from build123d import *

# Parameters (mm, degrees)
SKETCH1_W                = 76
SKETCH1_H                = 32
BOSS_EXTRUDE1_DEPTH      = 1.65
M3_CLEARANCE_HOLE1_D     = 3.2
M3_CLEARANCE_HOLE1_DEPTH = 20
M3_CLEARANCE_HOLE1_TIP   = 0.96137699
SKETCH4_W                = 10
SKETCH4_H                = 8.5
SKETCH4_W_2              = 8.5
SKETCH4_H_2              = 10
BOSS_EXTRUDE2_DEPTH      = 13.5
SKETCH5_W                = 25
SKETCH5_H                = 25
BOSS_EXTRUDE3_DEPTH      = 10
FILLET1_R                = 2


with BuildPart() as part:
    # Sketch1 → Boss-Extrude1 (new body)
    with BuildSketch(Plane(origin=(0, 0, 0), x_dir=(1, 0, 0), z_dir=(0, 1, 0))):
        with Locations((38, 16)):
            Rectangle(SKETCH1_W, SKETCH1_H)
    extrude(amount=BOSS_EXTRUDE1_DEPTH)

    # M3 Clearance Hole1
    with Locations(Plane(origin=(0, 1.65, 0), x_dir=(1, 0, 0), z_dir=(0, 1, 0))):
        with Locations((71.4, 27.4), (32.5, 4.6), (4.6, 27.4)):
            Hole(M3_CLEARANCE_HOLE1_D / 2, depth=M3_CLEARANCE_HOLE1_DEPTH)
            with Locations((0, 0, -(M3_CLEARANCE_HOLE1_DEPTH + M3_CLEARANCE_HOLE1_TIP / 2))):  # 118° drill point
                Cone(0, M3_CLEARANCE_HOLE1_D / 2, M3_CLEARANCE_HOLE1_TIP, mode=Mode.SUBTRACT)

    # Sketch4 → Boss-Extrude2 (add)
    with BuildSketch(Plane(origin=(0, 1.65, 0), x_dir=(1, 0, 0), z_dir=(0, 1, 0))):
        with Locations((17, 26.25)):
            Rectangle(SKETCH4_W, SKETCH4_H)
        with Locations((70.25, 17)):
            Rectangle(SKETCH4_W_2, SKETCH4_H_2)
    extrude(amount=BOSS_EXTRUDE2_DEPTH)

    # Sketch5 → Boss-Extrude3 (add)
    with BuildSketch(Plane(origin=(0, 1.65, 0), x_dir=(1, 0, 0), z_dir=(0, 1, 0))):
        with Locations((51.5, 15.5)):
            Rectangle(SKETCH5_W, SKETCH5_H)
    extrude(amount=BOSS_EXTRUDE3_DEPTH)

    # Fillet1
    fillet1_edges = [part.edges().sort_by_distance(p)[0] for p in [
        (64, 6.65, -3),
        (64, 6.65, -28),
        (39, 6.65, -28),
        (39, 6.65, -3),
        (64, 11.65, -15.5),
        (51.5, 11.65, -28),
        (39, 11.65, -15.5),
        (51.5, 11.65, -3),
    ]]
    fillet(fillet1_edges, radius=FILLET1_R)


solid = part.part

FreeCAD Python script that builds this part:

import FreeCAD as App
import Part
import Sketcher
from FreeCAD import Vector
Q = App.Units.Quantity


def edges_at(feature, points):
    """Names of the edges that pass closest to the given points."""
    edges = feature.Shape.Edges
    near = lambda p: min(range(len(edges)), key=lambda i: edges[i].distToShape(Part.Vertex(*p))[0])
    return sorted({f"Edge{near(p) + 1}" for p in points})

doc = App.newDocument("Part")
body = doc.addObject("PartDesign::Body", "Body")

# Sketch on XZ plane
sketch1 = body.newObject("Sketcher::SketchObject", "Sketch")
sketch1.AttachmentSupport = (doc.getObject("XZ_Plane"), [""])
sketch1.MapMode = "FlatFace"
sketch1.addGeometry([
    Part.LineSegment(Vector(0, -32, 0), Vector(0, 0, 0)),
    Part.LineSegment(Vector(0, 0, 0), Vector(76, 0, 0)),
    Part.LineSegment(Vector(76, 0, 0), Vector(76, -32, 0)),
    Part.LineSegment(Vector(76, -32, 0), Vector(0, -32, 0)),
], False)
sketch1.addConstraint([
    Sketcher.Constraint("Coincident", 0, 2, 1, 1),
    Sketcher.Constraint("Coincident", 1, 2, 2, 1),
    Sketcher.Constraint("Coincident", 2, 2, 3, 1),
    Sketcher.Constraint("Coincident", 3, 2, 0, 1),
    Sketcher.Constraint("Vertical", 0),
    Sketcher.Constraint("Horizontal", 1),
    Sketcher.Constraint("Vertical", 2),
    Sketcher.Constraint("Horizontal", 3),
    Sketcher.Constraint("Coincident", 0, 2, -1, 1),
    Sketcher.Constraint("DistanceX", 1, 1, 1, 2, Q("76 mm")),
    Sketcher.Constraint("DistanceY", 0, 1, 0, 2, Q("32 mm")),
])
pad1 = body.newObject("PartDesign::Pad", "Pad")
pad1.Profile = sketch1
pad1.Length = 1.65
pad1.Reversed = True

# Sketch on XZ plane
sketch2 = body.newObject("Sketcher::SketchObject", "Sketch001")
sketch2.AttachmentSupport = (doc.getObject("XZ_Plane"), [""])
sketch2.MapMode = "FlatFace"
sketch2.AttachmentOffset = App.Placement(Vector(0, 0, -1.65), App.Rotation())
sketch2.addGeometry([
    Part.Circle(Vector(71.4, -27.4, 0), Vector(0, 0, 1), 1.6),
    Part.Circle(Vector(32.5, -4.6, 0), Vector(0, 0, 1), 1.6),
    Part.Circle(Vector(4.6, -27.4, 0), Vector(0, 0, 1), 1.6),
], False)
sketch2.addConstraint([
    Sketcher.Constraint("Equal", 0, 1),
    Sketcher.Constraint("Equal", 1, 2),
    Sketcher.Constraint("Horizontal", 0, 3, 2, 3),
    Sketcher.Constraint("Diameter", 0, Q("3.2 mm")),
    Sketcher.Constraint("DistanceX", -1, 1, 0, 3, Q("71.4 mm")),
    Sketcher.Constraint("DistanceY", 0, 3, -1, 1, Q("27.4 mm")),
    Sketcher.Constraint("DistanceX", -1, 1, 1, 3, Q("32.5 mm")),
    Sketcher.Constraint("DistanceY", 1, 3, -1, 1, Q("4.6 mm")),
    Sketcher.Constraint("DistanceX", -1, 1, 2, 3, Q("4.6 mm")),
])
doc.recompute()
hole = body.newObject("PartDesign::Hole", "Hole")
hole.Profile = sketch2
hole.ThreadType = "None"
hole.Diameter = 3.2
hole.DepthType = "Dimension"
hole.Depth = 20
hole.DrillPoint = "Angled"
hole.DrillPointAngle = 118
hole.Reversed = True

# Sketch on XZ plane
sketch3 = body.newObject("Sketcher::SketchObject", "Sketch002")
sketch3.AttachmentSupport = (doc.getObject("XZ_Plane"), [""])
sketch3.MapMode = "FlatFace"
sketch3.AttachmentOffset = App.Placement(Vector(0, 0, -1.65), App.Rotation())
sketch3.addGeometry([
    Part.LineSegment(Vector(12, -30, 0), Vector(12, -22, 0)),  # 0
    Part.LineSegment(Vector(12, -22, 0), Vector(22, -22, 0)),  # 1
    Part.LineSegment(Vector(22, -22, 0), Vector(22, -30, 0)),  # 2
    Part.LineSegment(Vector(22, -30, 0), Vector(12, -30, 0)),  # 3
    Part.LineSegment(Vector(66, -22, 0), Vector(66, -12, 0)),  # 4
    Part.LineSegment(Vector(66, -12, 0), Vector(74, -12, 0)),  # 5
    Part.LineSegment(Vector(74, -12, 0), Vector(74, -22, 0)),  # 6
    Part.LineSegment(Vector(74, -22, 0), Vector(66, -22, 0)),  # 7
], False)
sketch3.addConstraint([
    Sketcher.Constraint("Coincident", 0, 2, 1, 1),
    Sketcher.Constraint("Coincident", 1, 2, 2, 1),
    Sketcher.Constraint("Coincident", 2, 2, 3, 1),
    Sketcher.Constraint("Coincident", 3, 2, 0, 1),
    Sketcher.Constraint("Coincident", 4, 2, 5, 1),
    Sketcher.Constraint("Coincident", 5, 2, 6, 1),
    Sketcher.Constraint("Coincident", 6, 2, 7, 1),
    Sketcher.Constraint("Coincident", 7, 2, 4, 1),
    Sketcher.Constraint("Vertical", 0),
    Sketcher.Constraint("Horizontal", 1),
    Sketcher.Constraint("Vertical", 2),
    Sketcher.Constraint("Horizontal", 3),
    Sketcher.Constraint("Vertical", 4),
    Sketcher.Constraint("Horizontal", 5),
    Sketcher.Constraint("Vertical", 6),
    Sketcher.Constraint("Horizontal", 7),
    Sketcher.Constraint("Horizontal", 1, 2, 6, 2),
    Sketcher.Constraint("Equal", 7, 0),
    Sketcher.Constraint("Equal", 3, 4),
    Sketcher.Constraint("DistanceX", 1, 1, 1, 2, Q("10 mm")),
    Sketcher.Constraint("DistanceX", 5, 1, 5, 2, Q("8.5 mm")),
    Sketcher.Constraint("DistanceX", -1, 1, 0, 2, Q("12 mm")),
    Sketcher.Constraint("DistanceY", 0, 2, -1, 1, Q("22 mm")),
    Sketcher.Constraint("DistanceX", -1, 1, 4, 2, Q("66 mm")),
])
pad2 = body.newObject("PartDesign::Pad", "Pad001")
pad2.Profile = sketch3
pad2.Length = 13.5
pad2.Reversed = True

# Sketch on XZ plane
sketch4 = body.newObject("Sketcher::SketchObject", "Sketch003")
sketch4.AttachmentSupport = (doc.getObject("XZ_Plane"), [""])
sketch4.MapMode = "FlatFace"
sketch4.AttachmentOffset = App.Placement(Vector(0, 0, -1.65), App.Rotation())
sketch4.addGeometry([
    Part.LineSegment(Vector(39, -28, 0), Vector(39, -3, 0)),
    Part.LineSegment(Vector(39, -3, 0), Vector(64, -3, 0)),
    Part.LineSegment(Vector(64, -3, 0), Vector(64, -28, 0)),
    Part.LineSegment(Vector(64, -28, 0), Vector(39, -28, 0)),
], False)
sketch4.addConstraint([
    Sketcher.Constraint("Coincident", 0, 2, 1, 1),
    Sketcher.Constraint("Coincident", 1, 2, 2, 1),
    Sketcher.Constraint("Coincident", 2, 2, 3, 1),
    Sketcher.Constraint("Coincident", 3, 2, 0, 1),
    Sketcher.Constraint("Vertical", 0),
    Sketcher.Constraint("Horizontal", 1),
    Sketcher.Constraint("Vertical", 2),
    Sketcher.Constraint("Horizontal", 3),
    Sketcher.Constraint("Equal", 3, 0),
    Sketcher.Constraint("DistanceX", 1, 1, 1, 2, Q("25 mm")),
    Sketcher.Constraint("DistanceX", -1, 1, 0, 2, Q("39 mm")),
    Sketcher.Constraint("DistanceY", 0, 2, -1, 1, Q("3 mm")),
])
pad3 = body.newObject("PartDesign::Pad", "Pad002")
pad3.Profile = sketch4
pad3.Length = 10
pad3.Reversed = True
doc.recompute()

fillet = body.newObject("PartDesign::Fillet", "Fillet")
fillet.Base = (pad3, edges_at(pad3, [
    (64, 6.65, -3),
    (64, 6.65, -28),
    (39, 6.65, -28),
    (39, 6.65, -3),
    (64, 11.65, -15.5),
    (51.5, 11.65, -28),
    (39, 11.65, -15.5),
    (51.5, 11.65, -3),
]))
fillet.Radius = 2

doc.recompute()
